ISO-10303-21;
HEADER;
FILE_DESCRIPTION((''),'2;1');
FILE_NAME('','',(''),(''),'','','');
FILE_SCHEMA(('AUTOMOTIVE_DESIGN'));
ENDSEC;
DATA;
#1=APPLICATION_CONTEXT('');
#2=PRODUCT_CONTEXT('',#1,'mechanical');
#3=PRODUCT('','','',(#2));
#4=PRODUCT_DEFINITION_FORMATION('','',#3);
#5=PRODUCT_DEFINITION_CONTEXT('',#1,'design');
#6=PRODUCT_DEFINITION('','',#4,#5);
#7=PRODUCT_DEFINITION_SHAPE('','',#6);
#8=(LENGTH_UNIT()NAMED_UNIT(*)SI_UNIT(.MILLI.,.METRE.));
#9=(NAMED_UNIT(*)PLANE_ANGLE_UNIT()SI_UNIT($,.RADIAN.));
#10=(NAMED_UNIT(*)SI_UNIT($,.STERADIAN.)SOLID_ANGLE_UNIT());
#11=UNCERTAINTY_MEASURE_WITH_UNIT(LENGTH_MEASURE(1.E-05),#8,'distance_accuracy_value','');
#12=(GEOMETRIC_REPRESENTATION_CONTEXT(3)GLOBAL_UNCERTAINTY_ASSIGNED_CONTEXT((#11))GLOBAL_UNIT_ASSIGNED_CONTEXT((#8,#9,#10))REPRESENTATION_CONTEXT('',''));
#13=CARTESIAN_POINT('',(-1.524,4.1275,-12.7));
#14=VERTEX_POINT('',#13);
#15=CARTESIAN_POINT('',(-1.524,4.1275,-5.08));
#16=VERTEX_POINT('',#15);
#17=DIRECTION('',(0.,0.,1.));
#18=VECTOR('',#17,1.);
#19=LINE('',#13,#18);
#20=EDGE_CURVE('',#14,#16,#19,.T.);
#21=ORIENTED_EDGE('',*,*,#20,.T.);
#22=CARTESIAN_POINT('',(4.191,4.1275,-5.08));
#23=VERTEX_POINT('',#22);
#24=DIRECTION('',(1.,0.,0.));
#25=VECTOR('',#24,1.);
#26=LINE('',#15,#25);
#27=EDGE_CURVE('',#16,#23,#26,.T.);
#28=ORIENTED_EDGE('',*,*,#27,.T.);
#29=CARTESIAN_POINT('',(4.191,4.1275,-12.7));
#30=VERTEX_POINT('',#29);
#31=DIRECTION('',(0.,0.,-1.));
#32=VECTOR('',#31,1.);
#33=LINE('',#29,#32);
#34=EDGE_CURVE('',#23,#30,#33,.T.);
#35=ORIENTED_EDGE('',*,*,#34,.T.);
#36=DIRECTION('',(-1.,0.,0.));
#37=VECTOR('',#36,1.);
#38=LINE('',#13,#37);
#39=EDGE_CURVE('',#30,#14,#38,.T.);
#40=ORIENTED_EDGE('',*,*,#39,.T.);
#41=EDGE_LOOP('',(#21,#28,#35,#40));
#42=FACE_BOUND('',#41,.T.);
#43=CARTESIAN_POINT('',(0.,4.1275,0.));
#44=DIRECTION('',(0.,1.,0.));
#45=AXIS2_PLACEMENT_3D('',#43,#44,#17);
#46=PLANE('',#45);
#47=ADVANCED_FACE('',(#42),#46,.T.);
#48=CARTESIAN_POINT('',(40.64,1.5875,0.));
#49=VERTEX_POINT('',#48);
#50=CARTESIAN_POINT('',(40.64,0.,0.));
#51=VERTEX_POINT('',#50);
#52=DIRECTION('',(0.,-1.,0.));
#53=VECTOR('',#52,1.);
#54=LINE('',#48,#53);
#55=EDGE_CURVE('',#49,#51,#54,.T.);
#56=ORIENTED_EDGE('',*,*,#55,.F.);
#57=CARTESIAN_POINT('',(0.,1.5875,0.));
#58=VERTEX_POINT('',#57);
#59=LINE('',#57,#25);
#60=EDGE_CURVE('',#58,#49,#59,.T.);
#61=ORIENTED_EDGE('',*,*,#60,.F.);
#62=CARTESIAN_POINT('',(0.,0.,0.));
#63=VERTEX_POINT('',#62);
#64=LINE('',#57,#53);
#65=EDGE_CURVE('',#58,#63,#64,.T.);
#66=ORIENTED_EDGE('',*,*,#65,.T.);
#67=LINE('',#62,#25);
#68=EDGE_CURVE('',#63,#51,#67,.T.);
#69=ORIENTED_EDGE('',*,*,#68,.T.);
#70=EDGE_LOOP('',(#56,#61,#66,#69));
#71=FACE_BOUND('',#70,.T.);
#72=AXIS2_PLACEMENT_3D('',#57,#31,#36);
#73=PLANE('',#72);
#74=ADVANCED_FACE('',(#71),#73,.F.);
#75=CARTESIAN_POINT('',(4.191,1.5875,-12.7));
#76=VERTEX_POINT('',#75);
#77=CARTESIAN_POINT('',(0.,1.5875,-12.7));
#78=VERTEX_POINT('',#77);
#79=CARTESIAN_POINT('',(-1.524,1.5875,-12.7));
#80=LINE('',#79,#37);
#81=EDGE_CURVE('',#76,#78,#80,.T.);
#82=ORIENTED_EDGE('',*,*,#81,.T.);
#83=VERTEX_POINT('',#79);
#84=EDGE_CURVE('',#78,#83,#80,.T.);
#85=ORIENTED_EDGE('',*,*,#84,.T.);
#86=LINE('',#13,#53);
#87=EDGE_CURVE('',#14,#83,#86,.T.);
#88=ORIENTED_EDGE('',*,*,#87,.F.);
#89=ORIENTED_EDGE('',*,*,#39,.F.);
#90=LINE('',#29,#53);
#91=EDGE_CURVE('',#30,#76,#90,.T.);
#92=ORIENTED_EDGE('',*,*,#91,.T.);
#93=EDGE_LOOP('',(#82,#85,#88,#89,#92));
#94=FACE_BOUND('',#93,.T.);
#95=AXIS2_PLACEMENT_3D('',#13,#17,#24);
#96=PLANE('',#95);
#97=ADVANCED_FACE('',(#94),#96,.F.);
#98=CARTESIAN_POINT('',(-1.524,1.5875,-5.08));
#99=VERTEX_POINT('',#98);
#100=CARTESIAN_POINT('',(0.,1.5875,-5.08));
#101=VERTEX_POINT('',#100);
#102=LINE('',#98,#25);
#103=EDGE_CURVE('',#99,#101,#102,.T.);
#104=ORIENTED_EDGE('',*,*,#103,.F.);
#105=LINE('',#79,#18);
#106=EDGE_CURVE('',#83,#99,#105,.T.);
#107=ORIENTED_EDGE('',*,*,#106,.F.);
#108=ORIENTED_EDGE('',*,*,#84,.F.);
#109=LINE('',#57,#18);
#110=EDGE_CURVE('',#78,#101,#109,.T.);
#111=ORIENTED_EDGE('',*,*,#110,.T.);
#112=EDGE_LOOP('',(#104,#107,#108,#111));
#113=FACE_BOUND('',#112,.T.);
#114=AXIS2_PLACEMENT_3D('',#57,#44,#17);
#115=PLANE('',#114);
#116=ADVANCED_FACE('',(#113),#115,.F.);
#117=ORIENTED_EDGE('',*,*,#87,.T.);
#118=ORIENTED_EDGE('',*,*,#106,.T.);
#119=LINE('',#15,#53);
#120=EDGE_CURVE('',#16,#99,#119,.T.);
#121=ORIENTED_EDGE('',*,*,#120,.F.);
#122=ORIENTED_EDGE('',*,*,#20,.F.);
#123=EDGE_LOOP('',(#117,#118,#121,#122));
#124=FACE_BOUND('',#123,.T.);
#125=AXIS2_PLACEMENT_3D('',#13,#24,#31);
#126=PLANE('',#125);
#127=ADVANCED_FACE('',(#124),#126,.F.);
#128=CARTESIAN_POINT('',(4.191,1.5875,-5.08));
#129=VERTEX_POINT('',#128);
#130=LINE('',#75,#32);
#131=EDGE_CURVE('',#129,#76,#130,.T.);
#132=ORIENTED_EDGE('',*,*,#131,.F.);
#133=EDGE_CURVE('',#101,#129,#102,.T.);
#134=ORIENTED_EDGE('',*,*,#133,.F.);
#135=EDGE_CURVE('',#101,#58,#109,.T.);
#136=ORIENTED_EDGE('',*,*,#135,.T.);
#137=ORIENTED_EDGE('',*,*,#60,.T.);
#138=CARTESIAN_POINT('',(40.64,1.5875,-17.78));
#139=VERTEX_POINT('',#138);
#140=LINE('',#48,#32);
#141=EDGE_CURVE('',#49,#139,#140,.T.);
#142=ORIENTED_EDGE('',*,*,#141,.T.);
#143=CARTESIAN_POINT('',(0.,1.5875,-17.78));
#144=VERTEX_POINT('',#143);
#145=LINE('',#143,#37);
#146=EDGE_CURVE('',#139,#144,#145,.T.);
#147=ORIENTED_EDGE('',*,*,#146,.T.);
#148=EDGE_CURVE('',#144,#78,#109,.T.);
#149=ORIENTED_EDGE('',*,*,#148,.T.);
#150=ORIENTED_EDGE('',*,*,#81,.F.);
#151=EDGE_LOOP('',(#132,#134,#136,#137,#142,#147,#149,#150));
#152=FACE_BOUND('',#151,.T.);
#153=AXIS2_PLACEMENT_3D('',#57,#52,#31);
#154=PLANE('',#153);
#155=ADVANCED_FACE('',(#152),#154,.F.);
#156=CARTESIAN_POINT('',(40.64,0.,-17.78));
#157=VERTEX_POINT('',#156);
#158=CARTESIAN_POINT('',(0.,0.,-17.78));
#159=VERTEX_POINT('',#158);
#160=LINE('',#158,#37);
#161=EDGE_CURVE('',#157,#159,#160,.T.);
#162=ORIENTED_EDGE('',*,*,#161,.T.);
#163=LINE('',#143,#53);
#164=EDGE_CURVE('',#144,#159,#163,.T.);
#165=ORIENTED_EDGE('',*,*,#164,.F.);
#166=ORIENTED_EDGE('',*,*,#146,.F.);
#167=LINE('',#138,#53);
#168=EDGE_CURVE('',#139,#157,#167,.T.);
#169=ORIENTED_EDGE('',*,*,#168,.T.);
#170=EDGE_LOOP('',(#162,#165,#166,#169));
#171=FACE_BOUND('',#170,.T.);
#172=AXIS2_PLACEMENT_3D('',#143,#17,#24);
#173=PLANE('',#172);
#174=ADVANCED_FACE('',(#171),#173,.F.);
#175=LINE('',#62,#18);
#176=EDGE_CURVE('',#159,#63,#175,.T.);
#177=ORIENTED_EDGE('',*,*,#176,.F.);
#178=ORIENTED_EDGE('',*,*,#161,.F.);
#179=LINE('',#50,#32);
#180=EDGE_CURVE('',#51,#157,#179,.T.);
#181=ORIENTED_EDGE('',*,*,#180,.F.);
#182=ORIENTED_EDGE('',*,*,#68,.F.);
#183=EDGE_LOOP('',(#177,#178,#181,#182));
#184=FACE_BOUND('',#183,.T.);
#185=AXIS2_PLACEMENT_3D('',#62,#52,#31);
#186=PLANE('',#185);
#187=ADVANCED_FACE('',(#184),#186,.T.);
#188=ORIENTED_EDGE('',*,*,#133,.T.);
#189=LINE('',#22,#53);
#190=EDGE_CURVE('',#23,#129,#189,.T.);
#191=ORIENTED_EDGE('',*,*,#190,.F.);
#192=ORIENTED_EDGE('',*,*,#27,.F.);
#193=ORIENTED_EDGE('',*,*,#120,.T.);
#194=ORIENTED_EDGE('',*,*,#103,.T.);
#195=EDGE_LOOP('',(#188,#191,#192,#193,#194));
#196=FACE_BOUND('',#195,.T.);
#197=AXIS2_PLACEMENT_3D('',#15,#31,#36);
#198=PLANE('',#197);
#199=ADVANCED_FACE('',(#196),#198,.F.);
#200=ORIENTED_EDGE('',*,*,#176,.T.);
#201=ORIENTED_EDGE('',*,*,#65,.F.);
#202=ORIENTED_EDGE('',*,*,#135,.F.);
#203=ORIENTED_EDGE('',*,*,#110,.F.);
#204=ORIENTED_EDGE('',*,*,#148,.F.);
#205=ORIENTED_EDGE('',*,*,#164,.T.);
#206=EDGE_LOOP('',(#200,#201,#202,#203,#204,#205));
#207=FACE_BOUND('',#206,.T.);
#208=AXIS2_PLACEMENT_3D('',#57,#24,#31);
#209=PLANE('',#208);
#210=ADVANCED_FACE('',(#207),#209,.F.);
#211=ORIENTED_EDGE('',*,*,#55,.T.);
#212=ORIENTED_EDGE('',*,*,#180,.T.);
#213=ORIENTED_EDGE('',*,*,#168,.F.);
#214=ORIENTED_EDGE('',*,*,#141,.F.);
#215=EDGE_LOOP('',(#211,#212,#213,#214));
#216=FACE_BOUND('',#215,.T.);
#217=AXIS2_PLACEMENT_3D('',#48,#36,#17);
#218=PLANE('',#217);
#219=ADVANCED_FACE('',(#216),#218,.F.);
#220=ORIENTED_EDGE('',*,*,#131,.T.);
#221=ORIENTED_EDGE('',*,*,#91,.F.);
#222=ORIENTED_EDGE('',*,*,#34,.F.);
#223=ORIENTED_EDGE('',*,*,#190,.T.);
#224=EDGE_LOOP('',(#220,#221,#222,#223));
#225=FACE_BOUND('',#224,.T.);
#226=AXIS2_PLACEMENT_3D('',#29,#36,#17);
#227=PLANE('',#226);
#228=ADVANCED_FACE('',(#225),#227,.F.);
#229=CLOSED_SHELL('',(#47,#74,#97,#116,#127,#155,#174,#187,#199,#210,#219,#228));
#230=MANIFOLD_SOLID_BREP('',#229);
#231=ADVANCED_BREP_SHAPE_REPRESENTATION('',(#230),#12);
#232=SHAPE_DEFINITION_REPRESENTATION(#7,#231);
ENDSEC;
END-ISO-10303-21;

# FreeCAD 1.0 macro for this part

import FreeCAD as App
import Part
import Sketcher
Q = App.Units.Quantity


def add_polygon(sketch, points):
    """Adds a closed chain of lines whose ends are joined by coincident constraints."""
    first, n = sketch.GeometryCount, len(points)
    for a, b in zip(points, points[1:] + points[:1]):
        sketch.addGeometry(Part.LineSegment(App.Vector(*a, 0), App.Vector(*b, 0)), False)
    for i in range(n):
        sketch.addConstraint(Sketcher.Constraint("Coincident", first + i, 2, first + (i + 1) % n, 1))

doc = App.newDocument("Part")
body = doc.addObject("PartDesign::Body", "Body")

# Sketch on XZ plane
sketch1 = body.newObject("Sketcher::SketchObject", "Sketch")
sketch1.AttachmentSupport = (doc.getObject("XZ_Plane"), [""])
sketch1.MapMode = "FlatFace"
add_polygon(sketch1, [(0, -18), (0, 0), (41, 0), (41, -18)])  # lines 0-3
sketch1.addConstraint([
    Sketcher.Constraint("Vertical", 0),
    Sketcher.Constraint("Horizontal", 1),
    Sketcher.Constraint("Vertical", 2),
    Sketcher.Constraint("Horizontal", 3),
    Sketcher.Constraint("Coincident", 0, 2, -1, 1),
    Sketcher.Constraint("DistanceX", 1, 1, 1, 2, Q("1.6 in")),
    Sketcher.Constraint("DistanceY", 0, 1, 0, 2, Q("0.7 in")),
])
pad1 = body.newObject("PartDesign::Pad", "Pad")
pad1.Profile = sketch1
pad1.Length = Q("0.0625 in")
pad1.Reversed = True

# Sketch on XZ plane
sketch2 = body.newObject("Sketcher::SketchObject", "Sketch001")
sketch2.AttachmentSupport = (doc.getObject("XZ_Plane"), [""])
sketch2.MapMode = "FlatFace"
sketch2.AttachmentOffset = App.Placement(App.Vector(0, 0, -0.0625 * 25.4), App.Rotation())
add_polygon(sketch2, [(-2, -13), (-2, -5), (4, -5), (4, -13)])  # lines 0-3
sketch2.addConstraint([
    Sketcher.Constraint("Vertical", 0),
    Sketcher.Constraint("Horizontal", 1),
    Sketcher.Constraint("Vertical", 2),
    Sketcher.Constraint("Horizontal", 3),
    Sketcher.Constraint("DistanceY", 0, 1, 0, 2, Q("0.3 in")),
    Sketcher.Constraint("DistanceY", 0, 2, -1, 1, Q("0.2 in")),
    Sketcher.Constraint("DistanceX", 1, 1, 1, 2, Q("0.225 in")),
    Sketcher.Constraint("DistanceX", 0, 2, -1, 1, Q("0.06 in")),
])
pad2 = body.newObject("PartDesign::Pad", "Pad001")
pad2.Profile = sketch2
pad2.Length = Q("0.1 in")
pad2.Reversed = True

doc.recompute()
